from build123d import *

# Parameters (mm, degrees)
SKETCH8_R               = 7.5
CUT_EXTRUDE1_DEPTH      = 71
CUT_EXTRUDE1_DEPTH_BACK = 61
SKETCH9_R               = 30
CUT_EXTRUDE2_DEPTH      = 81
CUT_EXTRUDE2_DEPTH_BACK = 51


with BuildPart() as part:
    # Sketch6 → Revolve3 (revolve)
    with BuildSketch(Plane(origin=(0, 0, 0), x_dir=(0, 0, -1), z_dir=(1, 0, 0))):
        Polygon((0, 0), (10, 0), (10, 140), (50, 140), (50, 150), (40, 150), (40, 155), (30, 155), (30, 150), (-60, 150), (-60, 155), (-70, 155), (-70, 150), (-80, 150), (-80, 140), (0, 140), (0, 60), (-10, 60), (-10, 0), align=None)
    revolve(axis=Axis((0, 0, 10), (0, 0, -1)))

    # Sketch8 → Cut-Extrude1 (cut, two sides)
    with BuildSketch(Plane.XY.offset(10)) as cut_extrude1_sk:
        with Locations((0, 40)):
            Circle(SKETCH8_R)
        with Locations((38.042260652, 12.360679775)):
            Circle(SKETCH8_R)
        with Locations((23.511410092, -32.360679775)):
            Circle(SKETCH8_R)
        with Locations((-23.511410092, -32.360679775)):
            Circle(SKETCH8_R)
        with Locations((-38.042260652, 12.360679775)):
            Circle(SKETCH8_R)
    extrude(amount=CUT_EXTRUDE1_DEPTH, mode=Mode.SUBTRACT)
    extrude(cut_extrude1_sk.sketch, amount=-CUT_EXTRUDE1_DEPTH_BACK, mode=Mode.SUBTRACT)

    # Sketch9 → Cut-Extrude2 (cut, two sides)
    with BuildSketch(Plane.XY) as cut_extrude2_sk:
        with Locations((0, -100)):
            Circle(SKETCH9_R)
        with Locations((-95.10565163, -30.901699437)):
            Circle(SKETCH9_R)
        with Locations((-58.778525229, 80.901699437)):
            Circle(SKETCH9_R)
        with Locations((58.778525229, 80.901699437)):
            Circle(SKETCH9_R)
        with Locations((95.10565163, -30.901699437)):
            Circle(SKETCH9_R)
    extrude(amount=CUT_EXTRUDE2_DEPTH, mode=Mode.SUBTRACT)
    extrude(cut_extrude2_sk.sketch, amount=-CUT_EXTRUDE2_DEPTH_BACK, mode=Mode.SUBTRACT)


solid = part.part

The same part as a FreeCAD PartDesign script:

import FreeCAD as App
import Part
import Sketcher
Q = App.Units.Quantity


def add_polygon(sketch, points):
    """Adds a closed chain of lines whose ends are joined by coincident constraints."""
    first, n = sketch.GeometryCount, len(points)
    for a, b in zip(points, points[1:] + points[:1]):
        sketch.addGeometry(Part.LineSegment(App.Vector(*a, 0), App.Vector(*b, 0)), False)
    for i in range(n):
        sketch.addConstraint(Sketcher.Constraint("Coincident", first + i, 2, first + (i + 1) % n, 1))

doc = App.newDocument("Part")
params = doc.addObject("Spreadsheet::Sheet", "Params")
for row, (alias, value) in enumerate([
    ("sketch1_width", "140 mm"),
    ("sketch1_width2", "10 mm"),
    ("sketch1_width3", "5 mm"),
    ("sketch1_width4", "80 mm"),
    ("sketch1_height", "40 mm"),
    ("revolution_angle", "360 deg"),
    ("sketch2_diameter", "15 mm"),
    ("sketch3_diameter", "60 mm"),
], start=1):
    params.set(f"A{row}", alias)
    params.set(f"B{row}", "=" + value)
    params.setAlias(f"B{row}", alias)

body = doc.addObject("PartDesign::Body", "Body")

sketch1 = body.newObject("Sketcher::SketchObject", "Sketch")
sketch1.AttachmentSupport = (doc.getObject("YZ_Plane"), [""])
sketch1.MapMode = "FlatFace"
add_polygon(sketch1, [(0, -10), (140, -10), (140, -50), (150, -50), (150, -40), (155, -40), (155, -30), (150, -30), (150, 60), (155, 60), (155, 70), (150, 70), (150, 80), (140, 80), (140, 0), (60, 0), (60, 10), (0, 10)])
sketch1.addConstraint([
    Sketcher.Constraint("Horizontal", 0),
    Sketcher.Constraint("Vertical", 1),
    Sketcher.Constraint("Horizontal", 2),
    Sketcher.Constraint("Vertical", 3),
    Sketcher.Constraint("Horizontal", 4),
    Sketcher.Constraint("Vertical", 5),
    Sketcher.Constraint("Horizontal", 6),
    Sketcher.Constraint("Vertical", 7),
    Sketcher.Constraint("Horizontal", 8),
    Sketcher.Constraint("Vertical", 9),
    Sketcher.Constraint("Horizontal", 10),
    Sketcher.Constraint("Vertical", 11),
    Sketcher.Constraint("Horizontal", 12),
    Sketcher.Constraint("Vertical", 13),
    Sketcher.Constraint("Horizontal", 14),
    Sketcher.Constraint("Vertical", 15),
    Sketcher.Constraint("Horizontal", 16),
    Sketcher.Constraint("Vertical", 17),
    Sketcher.Constraint("Symmetric", 16, 2, 17, 2, -1, 1),
    Sketcher.Constraint("PointOnObject", 13, 2, -1),
    Sketcher.Constraint("Vertical", 3, 2, 6, 2),
    Sketcher.Constraint("Vertical", 5, 2, 8, 2),
    Sketcher.Constraint("Vertical", 7, 2, 10, 2),
    Sketcher.Constraint("Vertical", 1, 2, 12, 2),
    Sketcher.Constraint("Equal", 12, 3),
    Sketcher.Constraint("Equal", 3, 5),
    Sketcher.Constraint("Equal", 5, 9),
    Sketcher.Constraint("Equal", 9, 11),
    Sketcher.Constraint("Equal", 14, 13),
    Sketcher.Constraint("Equal", 11, 15),
    Sketcher.Constraint("DistanceX", 0, 1, 0, 2, Q("140 mm")),
    Sketcher.Constraint("DistanceX", 2, 1, 2, 2, Q("10 mm")),
    Sketcher.Constraint("DistanceX", 4, 1, 4, 2, Q("5 mm")),
    Sketcher.Constraint("DistanceX", 14, 2, 14, 1, Q("80 mm")),
    Sketcher.Constraint("DistanceY", 1, 2, 1, 1, Q("40 mm")),
])
sketch1.setExpression("Constraints[48]", "Params.sketch1_width")
sketch1.setExpression("Constraints[49]", "Params.sketch1_width2")
sketch1.setExpression("Constraints[50]", "Params.sketch1_width3")
sketch1.setExpression("Constraints[51]", "Params.sketch1_width4")
sketch1.setExpression("Constraints[52]", "Params.sketch1_height")
revolution = body.newObject("PartDesign::Revolution", "Revolution")
revolution.Profile = sketch1
revolution.ReferenceAxis = (sketch1, ["V_Axis"])
revolution.setExpression("Angle", "Params.revolution_angle")

sketch2 = body.newObject("Sketcher::SketchObject", "Sketch001")
sketch2.AttachmentSupport = (doc.getObject("XY_Plane"), [""])
sketch2.MapMode = "FlatFace"
sketch2.AttachmentOffset = App.Placement(App.Vector(0, 0, 10), App.Rotation())
sketch2.addGeometry([
    Part.Circle(App.Vector(0, 40, 0), App.Vector(0, 0, 1), 8),
    Part.Circle(App.Vector(38, 12, 0), App.Vector(0, 0, 1), 8),
    Part.Circle(App.Vector(24, -32, 0), App.Vector(0, 0, 1), 8),
    Part.Circle(App.Vector(-24, -32, 0), App.Vector(0, 0, 1), 8),
    Part.Circle(App.Vector(-38, 12, 0), App.Vector(0, 0, 1), 8),
], False)
sketch2.addConstraint([
    Sketcher.Constraint("Equal", 0, 1),
    Sketcher.Constraint("Equal", 1, 2),
    Sketcher.Constraint("Equal", 2, 3),
    Sketcher.Constraint("Equal", 3, 4),
    Sketcher.Constraint("Symmetric", 2, 3, 3, 3, -2),
    Sketcher.Constraint("Symmetric", 1, 3, 4, 3, -2),
    Sketcher.Constraint("PointOnObject", 0, 3, -2),
    Sketcher.Constraint("Diameter", 0, Q("15 mm")),
    Sketcher.Constraint("DistanceY", -1, 1, 0, 3, Q("40 mm")),
    Sketcher.Constraint("DistanceX", -1, 1, 1, 3, Q("38.042261 mm")),
    Sketcher.Constraint("DistanceY", -1, 1, 1, 3, Q("12.36068 mm")),
    Sketcher.Constraint("DistanceX", -1, 1, 2, 3, Q("23.51141 mm")),
    Sketcher.Constraint("DistanceY", 2, 3, -1, 1, Q("32.36068 mm")),
])
sketch2.setExpression("Constraints[7]", "Params.sketch2_diameter")
pocket1 = body.newObject("PartDesign::Pocket", "Pocket")
pocket1.Profile = sketch2
pocket1.Type = "ThroughAll"
pocket1.Midplane = True

sketch3 = body.newObject("Sketcher::SketchObject", "Sketch002")
sketch3.AttachmentSupport = (doc.getObject("XY_Plane"), [""])
sketch3.MapMode = "FlatFace"
sketch3.addGeometry([
    Part.Circle(App.Vector(0, -100, 0), App.Vector(0, 0, 1), 30),
    Part.Circle(App.Vector(-95, -31, 0), App.Vector(0, 0, 1), 30),
    Part.Circle(App.Vector(-59, 81, 0), App.Vector(0, 0, 1), 30),
    Part.Circle(App.Vector(59, 81, 0), App.Vector(0, 0, 1), 30),
    Part.Circle(App.Vector(95, -31, 0), App.Vector(0, 0, 1), 30),
], False)
sketch3.addConstraint([
    Sketcher.Constraint("Equal", 0, 1),
    Sketcher.Constraint("Equal", 1, 2),
    Sketcher.Constraint("Equal", 2, 3),
    Sketcher.Constraint("Equal", 3, 4),
    Sketcher.Constraint("Symmetric", 2, 3, 3, 3, -2),
    Sketcher.Constraint("Symmetric", 1, 3, 4, 3, -2),
    Sketcher.Constraint("PointOnObject", 0, 3, -2),
    Sketcher.Constraint("Diameter", 0, Q("60 mm")),
    Sketcher.Constraint("DistanceY", 0, 3, -1, 1, Q("100 mm")),
    Sketcher.Constraint("DistanceY", 1, 3, -1, 1, Q("30.901699 mm")),
    Sketcher.Constraint("DistanceY", -1, 1, 2, 3, Q("80.901699 mm")),
    Sketcher.Constraint("DistanceX", 1, 3, -1, 1, Q("95.105652 mm")),
    Sketcher.Constraint("DistanceX", 2, 3, 3, 3, Q("117.55705 mm")),
])
sketch3.setExpression("Constraints[7]", "Params.sketch3_diameter")
pocket2 = body.newObject("PartDesign::Pocket", "Pocket001")
pocket2.Profile = sketch3
pocket2.Type = "ThroughAll"
pocket2.Midplane = True

doc.recompute()
